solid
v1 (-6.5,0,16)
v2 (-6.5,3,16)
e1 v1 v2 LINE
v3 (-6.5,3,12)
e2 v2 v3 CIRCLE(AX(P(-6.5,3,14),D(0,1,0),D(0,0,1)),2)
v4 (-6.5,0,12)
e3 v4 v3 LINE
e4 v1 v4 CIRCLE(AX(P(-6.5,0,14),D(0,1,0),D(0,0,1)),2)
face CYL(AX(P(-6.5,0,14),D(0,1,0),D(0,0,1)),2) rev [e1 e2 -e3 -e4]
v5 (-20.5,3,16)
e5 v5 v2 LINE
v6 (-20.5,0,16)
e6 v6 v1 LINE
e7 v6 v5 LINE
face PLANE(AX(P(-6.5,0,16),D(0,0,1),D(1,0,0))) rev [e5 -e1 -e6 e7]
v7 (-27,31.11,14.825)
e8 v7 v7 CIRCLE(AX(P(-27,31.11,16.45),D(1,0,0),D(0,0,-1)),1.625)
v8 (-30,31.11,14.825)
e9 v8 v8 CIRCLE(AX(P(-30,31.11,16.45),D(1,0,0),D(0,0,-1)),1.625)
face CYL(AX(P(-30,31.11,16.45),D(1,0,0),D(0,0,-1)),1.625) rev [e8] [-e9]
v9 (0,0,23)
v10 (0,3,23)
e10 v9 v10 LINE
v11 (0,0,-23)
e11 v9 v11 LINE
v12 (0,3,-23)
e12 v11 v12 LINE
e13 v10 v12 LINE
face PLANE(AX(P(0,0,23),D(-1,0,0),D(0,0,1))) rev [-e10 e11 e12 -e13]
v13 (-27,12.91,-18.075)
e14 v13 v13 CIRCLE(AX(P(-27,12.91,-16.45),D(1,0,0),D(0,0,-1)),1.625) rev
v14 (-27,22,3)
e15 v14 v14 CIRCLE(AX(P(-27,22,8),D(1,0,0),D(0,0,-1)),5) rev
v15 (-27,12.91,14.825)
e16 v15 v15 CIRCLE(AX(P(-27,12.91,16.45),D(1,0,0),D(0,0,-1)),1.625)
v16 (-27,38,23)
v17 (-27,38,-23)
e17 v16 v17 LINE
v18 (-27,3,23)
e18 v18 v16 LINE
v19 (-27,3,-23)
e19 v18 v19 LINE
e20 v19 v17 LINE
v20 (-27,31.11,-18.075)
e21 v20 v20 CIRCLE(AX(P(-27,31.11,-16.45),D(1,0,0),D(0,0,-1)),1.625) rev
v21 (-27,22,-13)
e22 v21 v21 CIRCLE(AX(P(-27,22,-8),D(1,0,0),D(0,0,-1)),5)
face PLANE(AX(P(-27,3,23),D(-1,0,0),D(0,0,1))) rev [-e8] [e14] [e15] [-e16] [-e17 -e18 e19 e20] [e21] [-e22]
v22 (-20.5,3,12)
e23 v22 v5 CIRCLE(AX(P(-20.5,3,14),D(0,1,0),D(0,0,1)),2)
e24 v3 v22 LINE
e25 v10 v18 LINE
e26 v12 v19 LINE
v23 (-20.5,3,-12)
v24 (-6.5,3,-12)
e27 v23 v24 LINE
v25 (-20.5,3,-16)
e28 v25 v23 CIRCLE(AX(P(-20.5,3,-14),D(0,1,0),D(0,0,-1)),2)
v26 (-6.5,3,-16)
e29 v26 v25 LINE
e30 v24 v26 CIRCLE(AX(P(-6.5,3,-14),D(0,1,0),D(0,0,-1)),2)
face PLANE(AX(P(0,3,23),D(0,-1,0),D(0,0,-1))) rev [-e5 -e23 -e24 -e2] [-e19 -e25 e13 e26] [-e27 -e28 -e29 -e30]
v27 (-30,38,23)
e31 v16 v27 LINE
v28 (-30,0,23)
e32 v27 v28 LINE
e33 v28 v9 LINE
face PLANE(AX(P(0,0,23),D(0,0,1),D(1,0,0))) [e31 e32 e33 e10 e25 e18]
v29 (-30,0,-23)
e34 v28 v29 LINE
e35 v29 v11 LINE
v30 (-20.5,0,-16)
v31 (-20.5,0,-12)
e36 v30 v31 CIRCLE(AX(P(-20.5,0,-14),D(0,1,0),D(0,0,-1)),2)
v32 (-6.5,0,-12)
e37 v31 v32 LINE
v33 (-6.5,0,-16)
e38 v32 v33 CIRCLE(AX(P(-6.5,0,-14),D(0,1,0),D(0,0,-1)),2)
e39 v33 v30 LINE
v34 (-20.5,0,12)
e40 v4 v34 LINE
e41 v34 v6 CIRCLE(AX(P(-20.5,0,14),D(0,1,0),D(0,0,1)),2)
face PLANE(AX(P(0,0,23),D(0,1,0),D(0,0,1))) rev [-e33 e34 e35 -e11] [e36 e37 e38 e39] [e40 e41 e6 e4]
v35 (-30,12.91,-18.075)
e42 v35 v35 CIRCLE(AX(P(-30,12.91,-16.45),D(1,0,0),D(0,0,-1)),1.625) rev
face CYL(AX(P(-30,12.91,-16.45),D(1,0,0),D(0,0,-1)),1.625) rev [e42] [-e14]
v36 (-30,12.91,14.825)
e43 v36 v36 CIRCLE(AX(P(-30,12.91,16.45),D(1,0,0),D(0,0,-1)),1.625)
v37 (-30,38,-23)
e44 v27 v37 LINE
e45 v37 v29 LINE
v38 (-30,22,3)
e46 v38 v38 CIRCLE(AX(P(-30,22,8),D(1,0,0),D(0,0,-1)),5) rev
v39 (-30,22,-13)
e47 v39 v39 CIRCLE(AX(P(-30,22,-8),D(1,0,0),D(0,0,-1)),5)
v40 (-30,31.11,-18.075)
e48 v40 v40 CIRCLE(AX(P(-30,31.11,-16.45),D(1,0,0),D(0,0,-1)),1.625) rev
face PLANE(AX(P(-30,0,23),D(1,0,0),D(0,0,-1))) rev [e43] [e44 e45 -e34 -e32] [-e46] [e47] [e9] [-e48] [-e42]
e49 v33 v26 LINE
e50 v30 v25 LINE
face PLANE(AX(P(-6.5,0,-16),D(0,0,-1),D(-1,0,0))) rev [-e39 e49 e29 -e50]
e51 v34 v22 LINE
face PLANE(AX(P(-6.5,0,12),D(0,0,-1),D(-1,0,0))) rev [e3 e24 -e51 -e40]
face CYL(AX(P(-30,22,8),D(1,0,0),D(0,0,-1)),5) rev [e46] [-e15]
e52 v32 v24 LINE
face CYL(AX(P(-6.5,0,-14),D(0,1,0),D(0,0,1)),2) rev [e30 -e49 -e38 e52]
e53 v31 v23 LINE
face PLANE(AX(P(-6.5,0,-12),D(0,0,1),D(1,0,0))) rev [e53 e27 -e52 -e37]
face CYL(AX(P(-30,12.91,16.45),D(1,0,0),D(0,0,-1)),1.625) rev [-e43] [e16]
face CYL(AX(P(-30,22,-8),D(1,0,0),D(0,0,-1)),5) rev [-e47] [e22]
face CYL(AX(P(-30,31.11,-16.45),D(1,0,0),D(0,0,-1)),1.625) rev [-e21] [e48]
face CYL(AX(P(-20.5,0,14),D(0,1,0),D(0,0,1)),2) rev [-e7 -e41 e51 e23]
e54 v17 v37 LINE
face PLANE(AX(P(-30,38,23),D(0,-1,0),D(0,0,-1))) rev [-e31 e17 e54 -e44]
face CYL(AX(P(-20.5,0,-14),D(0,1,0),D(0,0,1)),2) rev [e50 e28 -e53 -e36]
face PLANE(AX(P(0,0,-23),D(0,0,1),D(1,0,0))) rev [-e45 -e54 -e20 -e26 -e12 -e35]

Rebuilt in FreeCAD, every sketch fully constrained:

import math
import FreeCAD as App
import Part
import Sketcher

doc = App.newDocument("Part")
body = doc.addObject("PartDesign::Body", "Body")

sketch1 = doc.addObject("Sketcher::SketchObject", "Sketch")
body.addObject(sketch1)
sketch1.AttachmentSupport = (doc.XY_Plane, [""])
sketch1.MapMode = "FlatFace"
sketch1.addGeometry(Part.LineSegment(App.Vector(-30, 0, 0), App.Vector(0, 0, 0)), False)
sketch1.addGeometry(Part.LineSegment(App.Vector(0, 0, 0), App.Vector(0, 3, 0)), False)
sketch1.addGeometry(Part.LineSegment(App.Vector(0, 3, 0), App.Vector(-27, 3, 0)), False)
sketch1.addGeometry(Part.LineSegment(App.Vector(-27, 3, 0), App.Vector(-27, 38, 0)), False)
sketch1.addGeometry(Part.LineSegment(App.Vector(-27, 38, 0), App.Vector(-30, 38, 0)), False)
sketch1.addGeometry(Part.LineSegment(App.Vector(-30, 38, 0), App.Vector(-30, 0, 0)), False)
sketch1.addConstraint(Sketcher.Constraint("Coincident", 0, 2, 1, 1))
sketch1.addConstraint(Sketcher.Constraint("Coincident", 1, 2, 2, 1))
sketch1.addConstraint(Sketcher.Constraint("Coincident", 2, 2, 3, 1))
sketch1.addConstraint(Sketcher.Constraint("Coincident", 3, 2, 4, 1))
sketch1.addConstraint(Sketcher.Constraint("Coincident", 4, 2, 5, 1))
sketch1.addConstraint(Sketcher.Constraint("Coincident", 5, 2, 0, 1))
sketch1.addConstraint(Sketcher.Constraint("Horizontal", 0))
sketch1.addConstraint(Sketcher.Constraint("Vertical", 1))
sketch1.addConstraint(Sketcher.Constraint("Horizontal", 2))
sketch1.addConstraint(Sketcher.Constraint("Vertical", 3))
sketch1.addConstraint(Sketcher.Constraint("Horizontal", 4))
sketch1.addConstraint(Sketcher.Constraint("Vertical", 5))
sketch1.addConstraint(Sketcher.Constraint("Coincident", 0, 2, -1, 1))
sketch1.addConstraint(Sketcher.Constraint("Equal", 4, 1))
sketch1.addConstraint(Sketcher.Constraint("DistanceX", 0, 1, 0, 2, 30.0))
sketch1.addConstraint(Sketcher.Constraint("DistanceX", 2, 2, 2, 1, 27.0))
sketch1.addConstraint(Sketcher.Constraint("DistanceY", 3, 1, 3, 2, 35.0))
pad1 = doc.addObject("PartDesign::Pad", "Pad")
body.addObject(pad1)
pad1.Profile = sketch1
pad1.Length = 46
pad1.Midplane = True

sketch2 = doc.addObject("Sketcher::SketchObject", "Sketch001")
body.addObject(sketch2)
sketch2.AttachmentSupport = (doc.XZ_Plane, [""])
sketch2.MapMode = "FlatFace"
sketch2.AttachmentOffset = App.Placement(App.Vector(0, 0, -3), App.Rotation())
sketch2.addGeometry(Part.LineSegment(App.Vector(-20.5, 16, 0), App.Vector(-6.5, 16, 0)), False)
sketch2.addGeometry(Part.ArcOfCircle(Part.Circle(App.Vector(-6.5, 14, 0), App.Vector(0, 0, 1), 2), math.radians(-90), math.radians(90)), False)
sketch2.addGeometry(Part.LineSegment(App.Vector(-6.5, 12, 0), App.Vector(-20.5, 12, 0)), False)
sketch2.addGeometry(Part.ArcOfCircle(Part.Circle(App.Vector(-20.5, 14, 0), App.Vector(0, 0, 1), 2), math.radians(90), math.radians(270)), False)
sketch2.addGeometry(Part.LineSegment(App.Vector(-6.5, -16, 0), App.Vector(-20.5, -16, 0)), False)
sketch2.addGeometry(Part.ArcOfCircle(Part.Circle(App.Vector(-20.5, -14, 0), App.Vector(0, 0, 1), 2), math.radians(90), math.radians(270)), False)
sketch2.addGeometry(Part.LineSegment(App.Vector(-20.5, -12, 0), App.Vector(-6.5, -12, 0)), False)
sketch2.addGeometry(Part.ArcOfCircle(Part.Circle(App.Vector(-6.5, -14, 0), App.Vector(0, 0, 1), 2), math.radians(-90), math.radians(90)), False)
sketch2.addConstraint(Sketcher.Constraint("Tangent", 0, 2, 1, 2))
sketch2.addConstraint(Sketcher.Constraint("Tangent", 1, 1, 2, 1))
sketch2.addConstraint(Sketcher.Constraint("Tangent", 2, 2, 3, 2))
sketch2.addConstraint(Sketcher.Constraint("Tangent", 3, 1, 0, 1))
sketch2.addConstraint(Sketcher.Constraint("Tangent", 4, 2, 5, 2))
sketch2.addConstraint(Sketcher.Constraint("Tangent", 5, 1, 6, 1))
sketch2.addConstraint(Sketcher.Constraint("Tangent", 6, 2, 7, 2))
sketch2.addConstraint(Sketcher.Constraint("Tangent", 7, 1, 4, 1))
sketch2.addConstraint(Sketcher.Constraint("Horizontal", 0))
sketch2.addConstraint(Sketcher.Constraint("Horizontal", 2))
sketch2.addConstraint(Sketcher.Constraint("Horizontal", 4))
sketch2.addConstraint(Sketcher.Constraint("Horizontal", 6))
sketch2.addConstraint(Sketcher.Constraint("Equal", 3, 5))
sketch2.addConstraint(Sketcher.Constraint("Symmetric", 3, 3, 5, 3, -1))
sketch2.addConstraint(Sketcher.Constraint("Vertical", 1, 3, 7, 3))
sketch2.addConstraint(Sketcher.Constraint("Radius", 1, 2.0))
sketch2.addConstraint(Sketcher.Constraint("DistanceX", 0, 1, 0, 2, 14.0))
sketch2.addConstraint(Sketcher.Constraint("DistanceY", -1, 1, 1, 3, 14.0))
sketch2.addConstraint(Sketcher.Constraint("DistanceX", 1, 3, -1, 1, 6.5))
pocket1 = doc.addObject("PartDesign::Pocket", "Pocket")
body.addObject(pocket1)
pocket1.Profile = sketch2
pocket1.Type = "ThroughAll"
pocket1.Reversed = True

sketch3 = doc.addObject("Sketcher::SketchObject", "Sketch002")
body.addObject(sketch3)
sketch3.AttachmentSupport = (doc.YZ_Plane, [""])
sketch3.MapMode = "FlatFace"
sketch3.AttachmentOffset = App.Placement(App.Vector(0, 0, -27), App.Rotation())
sketch3.addGeometry(Part.Circle(App.Vector(31.11, 16.45, 0), App.Vector(0, 0, 1), 1.625), False)
sketch3.addGeometry(Part.Circle(App.Vector(22, 8, 0), App.Vector(0, 0, 1), 5), False)
sketch3.addGeometry(Part.Circle(App.Vector(12.91, 16.45, 0), App.Vector(0, 0, 1), 1.625), False)
sketch3.addGeometry(Part.Circle(App.Vector(22, -8, 0), App.Vector(0, 0, 1), 5), False)
sketch3.addGeometry(Part.Circle(App.Vector(31.11, -16.45, 0), App.Vector(0, 0, 1), 1.625), False)
sketch3.addGeometry(Part.Circle(App.Vector(12.91, -16.45, 0), App.Vector(0, 0, 1), 1.625), False)
sketch3.addConstraint(Sketcher.Constraint("Equal", 0, 2))
sketch3.addConstraint(Sketcher.Constraint("Equal", 1, 3))
sketch3.addConstraint(Sketcher.Constraint("Equal", 2, 4))
sketch3.addConstraint(Sketcher.Constraint("Equal", 4, 5))
sketch3.addConstraint(Sketcher.Constraint("Symmetric", 1, 3, 3, 3, -1))
sketch3.addConstraint(Sketcher.Constraint("Symmetric", 0, 3, 4, 3, -1))
sketch3.addConstraint(Sketcher.Constraint("Symmetric", 2, 3, 5, 3, -1))
sketch3.addConstraint(Sketcher.Constraint("Horizontal", 0, 3, 2, 3))
sketch3.addConstraint(Sketcher.Constraint("Diameter", 1, 10.0))
sketch3.addConstraint(Sketcher.Constraint("Diameter", 0, 3.25))
sketch3.addConstraint(Sketcher.Constraint("DistanceX", -1, 1, 1, 3, 22.0))
sketch3.addConstraint(Sketcher.Constraint("DistanceY", -1, 1, 1, 3, 8.0))
sketch3.addConstraint(Sketcher.Constraint("DistanceX", 2, 3, 0, 3, 18.2))
sketch3.addConstraint(Sketcher.Constraint("DistanceY", 4, 3, 0, 3, 32.9))
sketch3.addConstraint(Sketcher.Constraint("DistanceX", -1, 1, 0, 3, 31.11))
pocket2 = doc.addObject("PartDesign::Pocket", "Pocket001")
body.addObject(pocket2)
pocket2.Profile = sketch3
pocket2.Type = "ThroughAll"

doc.recompute()
